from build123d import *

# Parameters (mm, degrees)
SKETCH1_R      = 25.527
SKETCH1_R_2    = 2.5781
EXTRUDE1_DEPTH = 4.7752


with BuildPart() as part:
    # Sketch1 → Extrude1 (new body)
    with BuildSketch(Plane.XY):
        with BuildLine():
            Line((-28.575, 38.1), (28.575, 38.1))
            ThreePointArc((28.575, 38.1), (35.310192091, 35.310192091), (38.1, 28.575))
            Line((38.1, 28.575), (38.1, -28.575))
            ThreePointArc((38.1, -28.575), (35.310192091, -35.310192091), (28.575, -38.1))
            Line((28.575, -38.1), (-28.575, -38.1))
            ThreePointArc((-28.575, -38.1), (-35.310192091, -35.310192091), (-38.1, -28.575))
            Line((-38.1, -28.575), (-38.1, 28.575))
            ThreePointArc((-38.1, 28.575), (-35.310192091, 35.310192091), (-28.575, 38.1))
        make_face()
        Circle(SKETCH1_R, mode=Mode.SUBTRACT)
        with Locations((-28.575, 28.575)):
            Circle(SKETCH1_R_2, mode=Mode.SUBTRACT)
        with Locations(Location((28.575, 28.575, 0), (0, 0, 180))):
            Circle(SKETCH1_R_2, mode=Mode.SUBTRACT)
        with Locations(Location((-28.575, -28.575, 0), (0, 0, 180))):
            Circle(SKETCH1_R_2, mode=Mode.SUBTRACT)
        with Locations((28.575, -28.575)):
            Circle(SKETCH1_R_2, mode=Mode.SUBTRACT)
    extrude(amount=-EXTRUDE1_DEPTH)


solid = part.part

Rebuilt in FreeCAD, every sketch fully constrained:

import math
import FreeCAD as App
import Part
import Sketcher

V = App.Vector
Q = App.Units.Quantity

doc = App.newDocument("Part")
body = doc.addObject("PartDesign::Body", "Body")

# Sketch on XY plane
sketch1 = body.newObject("Sketcher::SketchObject", "Sketch")
sketch1.AttachmentSupport = (doc.getObject("XY_Plane"), [""])
sketch1.MapMode = "FlatFace"
sketch1.addGeometry([
    Part.LineSegment(V(28.6, 38.1, 0), V(-28.6, 38.1, 0)),  # 0
    Part.ArcOfCircle(Part.Circle(V(-28.6, 28.6, 0), V(0, 0, 1), 9.5), math.radians(90), math.radians(180)),  # 1
    Part.LineSegment(V(-38.1, 28.6, 0), V(-38.1, -28.6, 0)),  # 2
    Part.ArcOfCircle(Part.Circle(V(-28.6, -28.6, 0), V(0, 0, 1), 9.5), math.radians(180), math.radians(270)),  # 3
    Part.LineSegment(V(-28.6, -38.1, 0), V(28.6, -38.1, 0)),  # 4
    Part.ArcOfCircle(Part.Circle(V(28.6, -28.6, 0), V(0, 0, 1), 9.5), math.radians(-90), math.radians(0)),  # 5
    Part.LineSegment(V(38.1, -28.6, 0), V(38.1, 28.6, 0)),  # 6
    Part.ArcOfCircle(Part.Circle(V(28.6, 28.6, 0), V(0, 0, 1), 9.5), math.radians(0), math.radians(90)),  # 7
    Part.Circle(V(28.6, -28.6, 0), V(0, 0, 1), 2.6),  # 8
    Part.Circle(V(0, 0, 0), V(0, 0, 1), 25.5),  # 9
    Part.Circle(V(-28.6, -28.6, 0), V(0, 0, 1), 2.6),  # 10
    Part.Circle(V(28.6, 28.6, 0), V(0, 0, 1), 2.6),  # 11
    Part.Circle(V(-28.6, 28.6, 0), V(0, 0, 1), 2.6),  # 12
], False)
sketch1.addConstraint([
    Sketcher.Constraint("Tangent", 0, 2, 1, 1),
    Sketcher.Constraint("Tangent", 1, 2, 2, 1),
    Sketcher.Constraint("Tangent", 2, 2, 3, 1),
    Sketcher.Constraint("Tangent", 3, 2, 4, 1),
    Sketcher.Constraint("Tangent", 4, 2, 5, 1),
    Sketcher.Constraint("Tangent", 5, 2, 6, 1),
    Sketcher.Constraint("Tangent", 6, 2, 7, 1),
    Sketcher.Constraint("Tangent", 7, 2, 0, 1),
    Sketcher.Constraint("Horizontal", 0),
    Sketcher.Constraint("Vertical", 2),
    Sketcher.Constraint("Horizontal", 4),
    Sketcher.Constraint("Vertical", 6),
    Sketcher.Constraint("Coincident", 9, 3, -1, 1),
    Sketcher.Constraint("Coincident", 8, 3, 5, 3),
    Sketcher.Constraint("Coincident", 10, 3, 3, 3),
    Sketcher.Constraint("Coincident", 11, 3, 7, 3),
    Sketcher.Constraint("Coincident", 12, 3, 1, 3),
    Sketcher.Constraint("Equal", 1, 3),
    Sketcher.Constraint("Equal", 3, 5),
    Sketcher.Constraint("Equal", 5, 7),
    Sketcher.Constraint("Equal", 8, 10),
    Sketcher.Constraint("Equal", 10, 11),
    Sketcher.Constraint("Equal", 11, 12),
    Sketcher.Constraint("Symmetric", 1, 3, 5, 3, -1, 1),
    Sketcher.Constraint("Equal", 4, 2),
    Sketcher.Constraint("Diameter", 9, Q("2.01 in")),
    Sketcher.Constraint("Diameter", 8, Q("0.203 in")),
    Sketcher.Constraint("Radius", 1, Q("0.375 in")),
    Sketcher.Constraint("DistanceX", 0, 2, 0, 1, Q("2.25 in")),
])
pad1 = body.newObject("PartDesign::Pad", "Pad")
pad1.Profile = sketch1
pad1.Length = Q("0.188 in")
pad1.Reversed = True

doc.recompute()
